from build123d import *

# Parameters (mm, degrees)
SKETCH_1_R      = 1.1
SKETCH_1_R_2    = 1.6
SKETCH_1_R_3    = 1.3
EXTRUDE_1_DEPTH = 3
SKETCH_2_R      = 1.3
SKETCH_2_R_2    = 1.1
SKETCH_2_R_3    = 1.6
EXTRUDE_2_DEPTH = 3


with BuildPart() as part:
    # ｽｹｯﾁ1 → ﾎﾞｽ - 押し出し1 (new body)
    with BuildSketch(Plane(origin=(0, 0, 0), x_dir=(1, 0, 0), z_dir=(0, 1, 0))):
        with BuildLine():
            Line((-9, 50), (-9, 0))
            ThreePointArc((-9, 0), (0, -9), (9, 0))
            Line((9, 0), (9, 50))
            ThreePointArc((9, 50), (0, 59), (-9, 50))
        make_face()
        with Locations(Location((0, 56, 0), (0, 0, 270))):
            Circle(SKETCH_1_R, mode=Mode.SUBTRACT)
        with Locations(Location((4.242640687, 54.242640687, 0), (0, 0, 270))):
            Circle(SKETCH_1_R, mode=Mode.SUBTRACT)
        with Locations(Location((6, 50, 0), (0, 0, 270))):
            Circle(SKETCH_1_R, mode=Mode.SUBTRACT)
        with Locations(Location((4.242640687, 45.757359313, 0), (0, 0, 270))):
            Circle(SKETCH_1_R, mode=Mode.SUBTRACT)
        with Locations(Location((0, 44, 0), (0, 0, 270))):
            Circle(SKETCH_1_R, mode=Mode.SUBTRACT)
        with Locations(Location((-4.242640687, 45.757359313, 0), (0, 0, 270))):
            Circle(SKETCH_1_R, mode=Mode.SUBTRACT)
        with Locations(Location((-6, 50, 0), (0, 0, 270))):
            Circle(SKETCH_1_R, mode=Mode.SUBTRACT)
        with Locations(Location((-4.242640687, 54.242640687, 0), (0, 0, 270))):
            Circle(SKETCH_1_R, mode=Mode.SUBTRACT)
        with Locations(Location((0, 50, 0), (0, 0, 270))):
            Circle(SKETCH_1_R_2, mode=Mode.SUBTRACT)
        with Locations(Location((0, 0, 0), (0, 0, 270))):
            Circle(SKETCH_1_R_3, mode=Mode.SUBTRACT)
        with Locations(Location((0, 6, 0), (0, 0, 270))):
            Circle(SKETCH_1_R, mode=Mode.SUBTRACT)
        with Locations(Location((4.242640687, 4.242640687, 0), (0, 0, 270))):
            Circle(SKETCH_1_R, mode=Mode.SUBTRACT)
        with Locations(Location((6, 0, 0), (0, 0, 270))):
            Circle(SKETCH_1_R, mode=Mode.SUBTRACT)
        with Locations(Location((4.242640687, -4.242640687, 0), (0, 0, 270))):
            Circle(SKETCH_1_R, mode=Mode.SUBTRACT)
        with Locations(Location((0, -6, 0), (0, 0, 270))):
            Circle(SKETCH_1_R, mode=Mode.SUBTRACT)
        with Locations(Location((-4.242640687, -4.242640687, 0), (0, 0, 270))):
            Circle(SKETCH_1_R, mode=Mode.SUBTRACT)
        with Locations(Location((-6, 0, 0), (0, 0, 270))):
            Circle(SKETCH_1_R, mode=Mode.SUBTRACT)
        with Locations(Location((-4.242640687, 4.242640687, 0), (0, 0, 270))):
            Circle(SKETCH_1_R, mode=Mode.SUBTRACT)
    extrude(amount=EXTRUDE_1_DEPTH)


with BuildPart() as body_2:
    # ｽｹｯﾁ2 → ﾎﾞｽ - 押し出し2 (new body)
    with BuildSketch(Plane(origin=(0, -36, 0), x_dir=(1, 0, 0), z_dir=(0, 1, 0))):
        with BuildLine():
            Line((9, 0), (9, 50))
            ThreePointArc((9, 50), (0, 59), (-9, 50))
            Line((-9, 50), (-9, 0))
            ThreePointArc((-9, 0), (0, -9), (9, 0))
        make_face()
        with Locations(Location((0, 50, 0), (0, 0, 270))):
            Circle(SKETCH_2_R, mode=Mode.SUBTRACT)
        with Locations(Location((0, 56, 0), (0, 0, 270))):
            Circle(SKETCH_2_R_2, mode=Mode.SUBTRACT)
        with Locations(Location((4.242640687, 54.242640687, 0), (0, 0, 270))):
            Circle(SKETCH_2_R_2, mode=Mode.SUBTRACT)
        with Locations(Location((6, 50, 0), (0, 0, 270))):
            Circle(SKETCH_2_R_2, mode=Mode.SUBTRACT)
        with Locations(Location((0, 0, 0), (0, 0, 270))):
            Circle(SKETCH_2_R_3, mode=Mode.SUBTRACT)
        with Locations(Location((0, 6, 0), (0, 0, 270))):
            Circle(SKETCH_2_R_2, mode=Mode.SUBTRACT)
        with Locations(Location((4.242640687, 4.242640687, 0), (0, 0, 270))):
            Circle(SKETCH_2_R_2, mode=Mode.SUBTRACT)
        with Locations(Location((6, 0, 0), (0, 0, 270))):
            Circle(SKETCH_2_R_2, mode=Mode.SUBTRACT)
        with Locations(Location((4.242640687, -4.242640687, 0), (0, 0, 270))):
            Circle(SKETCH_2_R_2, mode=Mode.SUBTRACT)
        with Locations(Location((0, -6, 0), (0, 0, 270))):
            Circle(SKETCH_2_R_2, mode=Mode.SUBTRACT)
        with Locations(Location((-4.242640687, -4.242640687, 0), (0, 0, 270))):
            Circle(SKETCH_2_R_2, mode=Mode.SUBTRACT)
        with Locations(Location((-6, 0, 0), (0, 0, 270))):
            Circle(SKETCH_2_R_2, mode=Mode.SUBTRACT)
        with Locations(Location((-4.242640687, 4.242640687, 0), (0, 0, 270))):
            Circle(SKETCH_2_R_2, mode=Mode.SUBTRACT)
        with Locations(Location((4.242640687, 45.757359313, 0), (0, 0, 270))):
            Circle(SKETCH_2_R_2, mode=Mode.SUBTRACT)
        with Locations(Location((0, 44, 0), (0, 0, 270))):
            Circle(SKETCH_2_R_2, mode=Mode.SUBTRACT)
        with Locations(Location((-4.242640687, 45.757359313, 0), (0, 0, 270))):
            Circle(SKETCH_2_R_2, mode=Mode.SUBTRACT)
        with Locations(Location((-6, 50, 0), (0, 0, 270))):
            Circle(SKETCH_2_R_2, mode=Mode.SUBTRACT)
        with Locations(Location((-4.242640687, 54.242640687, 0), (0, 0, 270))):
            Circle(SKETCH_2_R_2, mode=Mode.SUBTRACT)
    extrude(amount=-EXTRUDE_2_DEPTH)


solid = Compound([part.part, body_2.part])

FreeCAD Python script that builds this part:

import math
import FreeCAD as App
import Part
import Sketcher

doc = App.newDocument("Part")
params = doc.addObject("Spreadsheet::Sheet", "Params")
for row, (alias, value) in enumerate([
    ("sketch1_radius", "9 mm"),
    ("sketch1_diameter", "2.2 mm"),
    ("sketch1_diameter2", "2.6 mm"),
    ("sketch1_diameter3", "3.2 mm"),
    ("sketch1_height", "50 mm"),
    ("pad1_length", "3 mm"),
    ("sketch2_radius", "9 mm"),
    ("sketch2_diameter", "2.2 mm"),
    ("sketch2_diameter2", "3.2 mm"),
    ("sketch2_diameter3", "2.6 mm"),
    ("sketch2_height", "50 mm"),
    ("pad2_length", "3 mm"),
], start=1):
    params.set(f"A{row}", alias)
    params.set(f"B{row}", "=" + value)
    params.setAlias(f"B{row}", alias)

body = doc.addObject("PartDesign::Body", "Body")

sketch1 = body.newObject("Sketcher::SketchObject", "Sketch")
sketch1.AttachmentSupport = (doc.getObject("XZ_Plane"), [""])
sketch1.MapMode = "FlatFace"
sketch1.addGeometry([
    Part.LineSegment(App.Vector(-9, -50, 0), App.Vector(-9, 0, 0)),
    Part.ArcOfCircle(Part.Circle(App.Vector(0, 0, 0), App.Vector(0, 0, 1), 9), math.radians(0), math.radians(180)),
    Part.LineSegment(App.Vector(9, 0, 0), App.Vector(9, -50, 0)),
    Part.ArcOfCircle(Part.Circle(App.Vector(0, -50, 0), App.Vector(0, 0, 1), 9), math.radians(180), math.radians(360)),
    Part.Circle(App.Vector(-6, 0, 0), App.Vector(0, 0, 1), 1.1),
    Part.Circle(App.Vector(-4.242641, 4.242641, 0), App.Vector(0, 0, 1), 1.1),
    Part.Circle(App.Vector(-4.242641, -4.242641, 0), App.Vector(0, 0, 1), 1.1),
    Part.Circle(App.Vector(0, 6, 0), App.Vector(0, 0, 1), 1.1),
    Part.Circle(App.Vector(0, 0, 0), App.Vector(0, 0, 1), 1.3),
    Part.Circle(App.Vector(0, -6, 0), App.Vector(0, 0, 1), 1.1),
    Part.Circle(App.Vector(4.242641, 4.242641, 0), App.Vector(0, 0, 1), 1.1),
    Part.Circle(App.Vector(6, 0, 0), App.Vector(0, 0, 1), 1.1),
    Part.Circle(App.Vector(4.242641, -4.242641, 0), App.Vector(0, 0, 1), 1.1),
    Part.Circle(App.Vector(-4.242641, -45.757359, 0), App.Vector(0, 0, 1), 1.1),
    Part.Circle(App.Vector(-6, -50, 0), App.Vector(0, 0, 1), 1.1),
    Part.Circle(App.Vector(-4.242641, -54.242641, 0), App.Vector(0, 0, 1), 1.1),
    Part.Circle(App.Vector(0, -44, 0), App.Vector(0, 0, 1), 1.1),
    Part.Circle(App.Vector(0, -50, 0), App.Vector(0, 0, 1), 1.6),
    Part.Circle(App.Vector(0, -56, 0), App.Vector(0, 0, 1), 1.1),
    Part.Circle(App.Vector(4.242641, -45.757359, 0), App.Vector(0, 0, 1), 1.1),
    Part.Circle(App.Vector(4.242641, -54.242641, 0), App.Vector(0, 0, 1), 1.1),
    Part.Circle(App.Vector(6, -50, 0), App.Vector(0, 0, 1), 1.1),
], False)
sketch1.addConstraint([
    Sketcher.Constraint("Tangent", 0, 2, 1, 2),
    Sketcher.Constraint("Tangent", 1, 1, 2, 1),
    Sketcher.Constraint("Tangent", 2, 2, 3, 2),
    Sketcher.Constraint("Tangent", 3, 1, 0, 1),
    Sketcher.Constraint("Vertical", 0),
    Sketcher.Constraint("Vertical", 2),
    Sketcher.Constraint("Coincident", 1, 3, -1, 1),
    Sketcher.Constraint("Coincident", 8, 3, -1, 1),
    Sketcher.Constraint("Coincident", 17, 3, 3, 3),
    Sketcher.Constraint("Equal", 4, 5),
    Sketcher.Constraint("Equal", 5, 6),
    Sketcher.Constraint("Equal", 6, 7),
    Sketcher.Constraint("Equal", 7, 9),
    Sketcher.Constraint("Equal", 9, 10),
    Sketcher.Constraint("Equal", 10, 11),
    Sketcher.Constraint("Equal", 11, 12),
    Sketcher.Constraint("Equal", 12, 13),
    Sketcher.Constraint("Equal", 13, 14),
    Sketcher.Constraint("Equal", 14, 15),
    Sketcher.Constraint("Equal", 15, 16),
    Sketcher.Constraint("Equal", 16, 18),
    Sketcher.Constraint("Equal", 18, 19),
    Sketcher.Constraint("Equal", 19, 20),
    Sketcher.Constraint("Equal", 20, 21),
    Sketcher.Constraint("Symmetric", 7, 3, 9, 3, -1, 1),
    Sketcher.Constraint("Symmetric", 6, 3, 10, 3, -1, 1),
    Sketcher.Constraint("Symmetric", 4, 3, 11, 3, -1, 1),
    Sketcher.Constraint("Symmetric", 5, 3, 12, 3, -1, 1),
    Sketcher.Constraint("Symmetric", 5, 3, 10, 3, -2),
    Sketcher.Constraint("Symmetric", 13, 3, 19, 3, -2),
    Sketcher.Constraint("Symmetric", 15, 3, 20, 3, -2),
    Sketcher.Constraint("Symmetric", 14, 3, 21, 3, -2),
    Sketcher.Constraint("PointOnObject", 4, 3, -1),
    Sketcher.Constraint("PointOnObject", 7, 3, -2),
    Sketcher.Constraint("PointOnObject", 16, 3, -2),
    Sketcher.Constraint("PointOnObject", 18, 3, -2),
    Sketcher.Constraint("Horizontal", 3, 3, 14, 3),
    Sketcher.Constraint("Vertical", 6, 3, 13, 3),
    Sketcher.Constraint("Vertical", 4, 3, 14, 3),
    Sketcher.Constraint("Vertical", 13, 3, 15, 3),
    Sketcher.Constraint("Radius", 1, 9.0),
    Sketcher.Constraint("Diameter", 4, 2.2),
    Sketcher.Constraint("Diameter", 8, 2.6),
    Sketcher.Constraint("Diameter", 17, 3.2),
    Sketcher.Constraint("DistanceY", 0, 1, 0, 2, 50.0),
    Sketcher.Constraint("DistanceX", 4, 3, -1, 1, 6.0),
    Sketcher.Constraint("DistanceY", -1, 1, 7, 3, 6.0),
    Sketcher.Constraint("DistanceY", 16, 3, -1, 1, 44.0),
    Sketcher.Constraint("DistanceY", 18, 3, -1, 1, 56.0),
    Sketcher.Constraint("DistanceY", 15, 3, 6, 3, 50.0),
    Sketcher.Constraint("DistanceX", 5, 3, -1, 1, 4.242641),
    Sketcher.Constraint("DistanceY", -1, 1, 5, 3, 4.242641),
    Sketcher.Constraint("DistanceY", 13, 3, -1, 1, 45.757359),
])
sketch1.setExpression("Constraints[40]", "Params.sketch1_radius")
sketch1.setExpression("Constraints[41]", "Params.sketch1_diameter")
sketch1.setExpression("Constraints[42]", "Params.sketch1_diameter2")
sketch1.setExpression("Constraints[43]", "Params.sketch1_diameter3")
sketch1.setExpression("Constraints[44]", "Params.sketch1_height")
pad1 = body.newObject("PartDesign::Pad", "Pad")
pad1.Profile = sketch1
pad1.setExpression("Length", "Params.pad1_length")
pad1.Reversed = True
body2 = doc.addObject("PartDesign::Body", "Body001")

sketch2 = body2.newObject("Sketcher::SketchObject", "Sketch001")
sketch2.AttachmentSupport = (doc.getObject("XZ_Plane001"), [""])
sketch2.MapMode = "FlatFace"
sketch2.AttachmentOffset = App.Placement(App.Vector(0, 0, 36), App.Rotation())
sketch2.addGeometry([
    Part.LineSegment(App.Vector(9, 0, 0), App.Vector(9, -50, 0)),
    Part.ArcOfCircle(Part.Circle(App.Vector(0, -50, 0), App.Vector(0, 0, 1), 9), math.radians(180), math.radians(360)),
    Part.LineSegment(App.Vector(-9, -50, 0), App.Vector(-9, 0, 0)),
    Part.ArcOfCircle(Part.Circle(App.Vector(0, 0, 0), App.Vector(0, 0, 1), 9), math.radians(0), math.radians(180)),
    Part.Circle(App.Vector(-6, 0, 0), App.Vector(0, 0, 1), 1.1),
    Part.Circle(App.Vector(-4.242641, 4.242641, 0), App.Vector(0, 0, 1), 1.1),
    Part.Circle(App.Vector(-4.242641, -4.242641, 0), App.Vector(0, 0, 1), 1.1),
    Part.Circle(App.Vector(0, 6, 0), App.Vector(0, 0, 1), 1.1),
    Part.Circle(App.Vector(0, 0, 0), App.Vector(0, 0, 1), 1.6),
    Part.Circle(App.Vector(0, -6, 0), App.Vector(0, 0, 1), 1.1),
    Part.Circle(App.Vector(4.242641, 4.242641, 0), App.Vector(0, 0, 1), 1.1),
    Part.Circle(App.Vector(6, 0, 0), App.Vector(0, 0, 1), 1.1),
    Part.Circle(App.Vector(4.242641, -4.242641, 0), App.Vector(0, 0, 1), 1.1),
    Part.Circle(App.Vector(-4.242641, -45.757359, 0), App.Vector(0, 0, 1), 1.1),
    Part.Circle(App.Vector(-6, -50, 0), App.Vector(0, 0, 1), 1.1),
    Part.Circle(App.Vector(-4.242641, -54.242641, 0), App.Vector(0, 0, 1), 1.1),
    Part.Circle(App.Vector(0, -44, 0), App.Vector(0, 0, 1), 1.1),
    Part.Circle(App.Vector(0, -50, 0), App.Vector(0, 0, 1), 1.3),
    Part.Circle(App.Vector(0, -56, 0), App.Vector(0, 0, 1), 1.1),
    Part.Circle(App.Vector(4.242641, -45.757359, 0), App.Vector(0, 0, 1), 1.1),
    Part.Circle(App.Vector(4.242641, -54.242641, 0), App.Vector(0, 0, 1), 1.1),
    Part.Circle(App.Vector(6, -50, 0), App.Vector(0, 0, 1), 1.1),
], False)
sketch2.addConstraint([
    Sketcher.Constraint("Tangent", 0, 2, 1, 2),
    Sketcher.Constraint("Tangent", 1, 1, 2, 1),
    Sketcher.Constraint("Tangent", 2, 2, 3, 2),
    Sketcher.Constraint("Tangent", 3, 1, 0, 1),
    Sketcher.Constraint("Vertical", 0),
    Sketcher.Constraint("Vertical", 2),
    Sketcher.Constraint("Coincident", 3, 3, -1, 1),
    Sketcher.Constraint("Coincident", 8, 3, -1, 1),
    Sketcher.Constraint("Coincident", 17, 3, 1, 3),
    Sketcher.Constraint("Equal", 4, 5),
    Sketcher.Constraint("Equal", 5, 6),
    Sketcher.Constraint("Equal", 6, 7),
    Sketcher.Constraint("Equal", 7, 9),
    Sketcher.Constraint("Equal", 9, 10),
    Sketcher.Constraint("Equal", 10, 11),
    Sketcher.Constraint("Equal", 11, 12),
    Sketcher.Constraint("Equal", 12, 13),
    Sketcher.Constraint("Equal", 13, 14),
    Sketcher.Constraint("Equal", 14, 15),
    Sketcher.Constraint("Equal", 15, 16),
    Sketcher.Constraint("Equal", 16, 18),
    Sketcher.Constraint("Equal", 18, 19),
    Sketcher.Constraint("Equal", 19, 20),
    Sketcher.Constraint("Equal", 20, 21),
    Sketcher.Constraint("Symmetric", 7, 3, 9, 3, -1, 1),
    Sketcher.Constraint("Symmetric", 6, 3, 10, 3, -1, 1),
    Sketcher.Constraint("Symmetric", 4, 3, 11, 3, -1, 1),
    Sketcher.Constraint("Symmetric", 5, 3, 12, 3, -1, 1),
    Sketcher.Constraint("Symmetric", 5, 3, 10, 3, -2),
    Sketcher.Constraint("Symmetric", 13, 3, 19, 3, -2),
    Sketcher.Constraint("Symmetric", 15, 3, 20, 3, -2),
    Sketcher.Constraint("Symmetric", 14, 3, 21, 3, -2),
    Sketcher.Constraint("PointOnObject", 4, 3, -1),
    Sketcher.Constraint("PointOnObject", 7, 3, -2),
    Sketcher.Constraint("PointOnObject", 16, 3, -2),
    Sketcher.Constraint("PointOnObject", 18, 3, -2),
    Sketcher.Constraint("Horizontal", 1, 3, 14, 3),
    Sketcher.Constraint("Vertical", 6, 3, 13, 3),
    Sketcher.Constraint("Vertical", 4, 3, 14, 3),
    Sketcher.Constraint("Vertical", 13, 3, 15, 3),
    Sketcher.Constraint("Radius", 1, 9.0),
    Sketcher.Constraint("Diameter", 4, 2.2),
    Sketcher.Constraint("Diameter", 8, 3.2),
    Sketcher.Constraint("Diameter", 17, 2.6),
    Sketcher.Constraint("DistanceY", 0, 2, 0, 1, 50.0),
    Sketcher.Constraint("DistanceX", 4, 3, -1, 1, 6.0),
    Sketcher.Constraint("DistanceY", -1, 1, 7, 3, 6.0),
    Sketcher.Constraint("DistanceY", 16, 3, -1, 1, 44.0),
    Sketcher.Constraint("DistanceY", 18, 3, -1, 1, 56.0),
    Sketcher.Constraint("DistanceY", 15, 3, 6, 3, 50.0),
    Sketcher.Constraint("DistanceX", 5, 3, -1, 1, 4.242641),
    Sketcher.Constraint("DistanceY", -1, 1, 5, 3, 4.242641),
    Sketcher.Constraint("DistanceY", 13, 3, -1, 1, 45.757359),
])
sketch2.setExpression("Constraints[40]", "Params.sketch2_radius")
sketch2.setExpression("Constraints[41]", "Params.sketch2_diameter")
sketch2.setExpression("Constraints[42]", "Params.sketch2_diameter2")
sketch2.setExpression("Constraints[43]", "Params.sketch2_diameter3")
sketch2.setExpression("Constraints[44]", "Params.sketch2_height")
pad2 = body2.newObject("PartDesign::Pad", "Pad001")
pad2.Profile = sketch2
pad2.setExpression("Length", "Params.pad2_length")

doc.recompute()
